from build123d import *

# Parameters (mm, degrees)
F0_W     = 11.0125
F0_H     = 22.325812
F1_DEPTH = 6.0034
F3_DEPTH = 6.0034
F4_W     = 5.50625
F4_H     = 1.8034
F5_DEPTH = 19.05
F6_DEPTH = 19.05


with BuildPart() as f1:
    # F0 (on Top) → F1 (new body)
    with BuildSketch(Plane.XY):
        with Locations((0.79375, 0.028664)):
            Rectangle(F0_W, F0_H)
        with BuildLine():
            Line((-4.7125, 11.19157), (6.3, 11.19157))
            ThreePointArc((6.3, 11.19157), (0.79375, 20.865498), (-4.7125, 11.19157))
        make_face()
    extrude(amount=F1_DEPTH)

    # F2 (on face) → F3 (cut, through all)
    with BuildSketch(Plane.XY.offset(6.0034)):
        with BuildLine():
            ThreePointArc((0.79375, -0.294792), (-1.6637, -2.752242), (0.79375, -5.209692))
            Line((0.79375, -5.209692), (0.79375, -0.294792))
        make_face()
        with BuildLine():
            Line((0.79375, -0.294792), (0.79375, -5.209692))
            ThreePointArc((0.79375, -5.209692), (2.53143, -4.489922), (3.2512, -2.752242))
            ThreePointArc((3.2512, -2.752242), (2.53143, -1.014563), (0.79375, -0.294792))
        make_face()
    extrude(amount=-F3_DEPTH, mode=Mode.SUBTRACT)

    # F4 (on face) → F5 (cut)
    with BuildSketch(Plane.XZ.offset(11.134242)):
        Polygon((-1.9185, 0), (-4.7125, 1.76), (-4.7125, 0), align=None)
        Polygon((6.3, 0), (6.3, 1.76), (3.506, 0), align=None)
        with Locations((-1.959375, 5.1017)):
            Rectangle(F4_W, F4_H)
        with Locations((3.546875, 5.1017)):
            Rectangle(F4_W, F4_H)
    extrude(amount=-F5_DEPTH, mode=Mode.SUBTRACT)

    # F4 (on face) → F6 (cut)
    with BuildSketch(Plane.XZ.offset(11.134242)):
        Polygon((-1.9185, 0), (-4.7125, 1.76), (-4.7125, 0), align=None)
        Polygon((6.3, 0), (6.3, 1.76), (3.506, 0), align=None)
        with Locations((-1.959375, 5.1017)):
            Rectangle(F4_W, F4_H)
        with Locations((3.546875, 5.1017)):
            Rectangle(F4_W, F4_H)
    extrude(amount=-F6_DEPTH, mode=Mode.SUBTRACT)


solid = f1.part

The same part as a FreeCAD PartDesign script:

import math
import FreeCAD as App
import Part
import Sketcher
from FreeCAD import Vector
Q = App.Units.Quantity


def add_polygon(sketch, points):
    """Adds a closed chain of lines whose ends are joined by coincident constraints."""
    first, n = sketch.GeometryCount, len(points)
    for a, b in zip(points, points[1:] + points[:1]):
        sketch.addGeometry(Part.LineSegment(App.Vector(*a, 0), App.Vector(*b, 0)), False)
    for i in range(n):
        sketch.addConstraint(Sketcher.Constraint("Coincident", first + i, 2, first + (i + 1) % n, 1))

doc = App.newDocument("Part")
body = doc.addObject("PartDesign::Body", "Body")

# Sketch on XY plane
sketch1 = body.newObject("Sketcher::SketchObject", "Sketch")
sketch1.AttachmentSupport = (doc.getObject("XY_Plane"), [""])
sketch1.MapMode = "FlatFace"
sketch1.addGeometry(Part.LineSegment(Vector(-5, 11, 0), Vector(-5, -11, 0)), False)
sketch1.addGeometry(Part.LineSegment(Vector(-5, -11, 0), Vector(6, -11, 0)), False)
sketch1.addGeometry(Part.LineSegment(Vector(6, -11, 0), Vector(6, 11, 0)), False)
sketch1.addGeometry(Part.ArcOfCircle(Part.Circle(Vector(1, 14, 0), Vector(0, 0, 1), 6), math.radians(-31), math.radians(211)), False)
sketch1.addConstraint(Sketcher.Constraint("Coincident", 0, 2, 1, 1))
sketch1.addConstraint(Sketcher.Constraint("Coincident", 1, 2, 2, 1))
sketch1.addConstraint(Sketcher.Constraint("Coincident", 2, 2, 3, 1))
sketch1.addConstraint(Sketcher.Constraint("Coincident", 3, 2, 0, 1))
sketch1.addConstraint(Sketcher.Constraint("Vertical", 0))
sketch1.addConstraint(Sketcher.Constraint("Horizontal", 1))
sketch1.addConstraint(Sketcher.Constraint("Vertical", 2))
sketch1.addConstraint(Sketcher.Constraint("Horizontal", 2, 2, 3, 2))
sketch1.addConstraint(Sketcher.Constraint("Radius", 3, Q("6.404 mm")))
sketch1.addConstraint(Sketcher.Constraint("DistanceX", -1, 1, 3, 3, Q("0.03125 in")))
sketch1.addConstraint(Sketcher.Constraint("DistanceX", 1, 1, 1, 2, Q("11.0125 mm")))
sketch1.addConstraint(Sketcher.Constraint("DistanceY", 0, 2, 0, 1, Q("22.325812 mm")))
sketch1.addConstraint(Sketcher.Constraint("DistanceY", -1, 1, 2, 2, Q("11.19157 mm")))
pad1 = body.newObject("PartDesign::Pad", "Pad")
pad1.Profile = sketch1
pad1.Length = 6.0034

# Sketch on XY plane
sketch2 = body.newObject("Sketcher::SketchObject", "Sketch001")
sketch2.AttachmentSupport = (doc.getObject("XY_Plane"), [""])
sketch2.MapMode = "FlatFace"
sketch2.AttachmentOffset = App.Placement(Vector(0, 0, 6.0034), App.Rotation())
sketch2.addGeometry(Part.ArcOfCircle(Part.Circle(Vector(0.8, -2.8, 0), Vector(0, 0, 1), 2.5), math.radians(90), math.radians(270)), False)
sketch2.addGeometry(Part.ArcOfCircle(Part.Circle(Vector(0.8, -2.8, 0), Vector(0, 0, 1), 2.5), math.radians(-90), math.radians(0)), False)
sketch2.addGeometry(Part.ArcOfCircle(Part.Circle(Vector(0.8, -2.8, 0), Vector(0, 0, 1), 2.5), math.radians(0), math.radians(90)), False)
sketch2.addConstraint(Sketcher.Constraint("Tangent", 0, 2, 1, 1))
sketch2.addConstraint(Sketcher.Constraint("Tangent", 1, 2, 2, 1))
sketch2.addConstraint(Sketcher.Constraint("Tangent", 2, 2, 0, 1))
sketch2.addConstraint(Sketcher.Constraint("Horizontal", 2, 3, 1, 2))
sketch2.addConstraint(Sketcher.Constraint("Vertical", 2, 3, 0, 2))
sketch2.addConstraint(Sketcher.Constraint("Vertical", 0, 2, 2, 2))
sketch2.addConstraint(Sketcher.Constraint("DistanceX", -1, 1, 0, 3, Q("0.03125 in")))
sketch2.addConstraint(Sketcher.Constraint("DistanceX", -1, 1, 1, 2, Q("0.128 in")))
sketch2.addConstraint(Sketcher.Constraint("DistanceY", 0, 3, -1, 1, Q("2.752242 mm")))
pocket1 = body.newObject("PartDesign::Pocket", "Pocket")
pocket1.Profile = sketch2
pocket1.Type = "ThroughAll"

# Sketch on XZ plane
sketch3 = body.newObject("Sketcher::SketchObject", "Sketch002")
sketch3.AttachmentSupport = (doc.getObject("XZ_Plane"), [""])
sketch3.MapMode = "FlatFace"
sketch3.AttachmentOffset = App.Placement(Vector(0, 0, 11.134242), App.Rotation())
add_polygon(sketch3, [(-1.9, 0), (-4.7, 1.8), (-4.7, 0)])  # lines 0-2
add_polygon(sketch3, [(6.3, 0), (6.3, 1.8), (3.5, 0)])  # lines 3-5
add_polygon(sketch3, [(-4.7, 6), (-4.7, 4.2), (6.3, 4.2), (6.3, 6)])  # lines 6-9
sketch3.addConstraint(Sketcher.Constraint("Vertical", 1))
sketch3.addConstraint(Sketcher.Constraint("Horizontal", 2))
sketch3.addConstraint(Sketcher.Constraint("Vertical", 3))
sketch3.addConstraint(Sketcher.Constraint("Horizontal", 5))
sketch3.addConstraint(Sketcher.Constraint("Vertical", 6))
sketch3.addConstraint(Sketcher.Constraint("Horizontal", 7))
sketch3.addConstraint(Sketcher.Constraint("Vertical", 8))
sketch3.addConstraint(Sketcher.Constraint("Horizontal", 9))
sketch3.addConstraint(Sketcher.Constraint("PointOnObject", 1, 2, -1))
sketch3.addConstraint(Sketcher.Constraint("PointOnObject", 4, 2, -1))
sketch3.addConstraint(Sketcher.Constraint("Horizontal", 0, 2, 3, 2))
sketch3.addConstraint(Sketcher.Constraint("Vertical", 1, 2, 6, 2))
sketch3.addConstraint(Sketcher.Constraint("Vertical", 5, 2, 7, 2))
sketch3.addConstraint(Sketcher.Constraint("Equal", 2, 5))
sketch3.addConstraint(Sketcher.Constraint("DistanceX", 2, 1, 2, 2, Q("0.11 in")))
sketch3.addConstraint(Sketcher.Constraint("DistanceY", 6, 2, 6, 1, Q("0.071 in")))
sketch3.addConstraint(Sketcher.Constraint("DistanceX", 7, 1, 7, 2, Q("11.0125 mm")))
sketch3.addConstraint(Sketcher.Constraint("DistanceY", 1, 2, 1, 1, Q("1.76 mm")))
sketch3.addConstraint(Sketcher.Constraint("DistanceX", 0, 2, -1, 1, Q("4.7125 mm")))
sketch3.addConstraint(Sketcher.Constraint("DistanceY", -1, 1, 6, 2, Q("4.2 mm")))
pocket2 = body.newObject("PartDesign::Pocket", "Pocket001")
pocket2.Profile = sketch3
pocket2.Length = Q("0.75 in")

# Sketch on XZ plane
sketch4 = body.newObject("Sketcher::SketchObject", "Sketch003")
sketch4.AttachmentSupport = (doc.getObject("XZ_Plane"), [""])
sketch4.MapMode = "FlatFace"
sketch4.AttachmentOffset = App.Placement(Vector(0, 0, 11.134242), App.Rotation())
add_polygon(sketch4, [(-1.9, 0), (-4.7, 1.8), (-4.7, 0)])  # lines 0-2
add_polygon(sketch4, [(6.3, 0), (6.3, 1.8), (3.5, 0)])  # lines 3-5
add_polygon(sketch4, [(-4.7, 6), (-4.7, 4.2), (6.3, 4.2), (6.3, 6)])  # lines 6-9
sketch4.addConstraint(Sketcher.Constraint("Vertical", 1))
sketch4.addConstraint(Sketcher.Constraint("Horizontal", 2))
sketch4.addConstraint(Sketcher.Constraint("Vertical", 3))
sketch4.addConstraint(Sketcher.Constraint("Horizontal", 5))
sketch4.addConstraint(Sketcher.Constraint("Vertical", 6))
sketch4.addConstraint(Sketcher.Constraint("Horizontal", 7))
sketch4.addConstraint(Sketcher.Constraint("Vertical", 8))
sketch4.addConstraint(Sketcher.Constraint("Horizontal", 9))
sketch4.addConstraint(Sketcher.Constraint("PointOnObject", 1, 2, -1))
sketch4.addConstraint(Sketcher.Constraint("PointOnObject", 4, 2, -1))
sketch4.addConstraint(Sketcher.Constraint("Horizontal", 0, 2, 3, 2))
sketch4.addConstraint(Sketcher.Constraint("Vertical", 1, 2, 6, 2))
sketch4.addConstraint(Sketcher.Constraint("Vertical", 5, 2, 7, 2))
sketch4.addConstraint(Sketcher.Constraint("Equal", 2, 5))
sketch4.addConstraint(Sketcher.Constraint("DistanceX", 2, 1, 2, 2, Q("0.11 in")))
sketch4.addConstraint(Sketcher.Constraint("DistanceY", 6, 2, 6, 1, Q("0.071 in")))
sketch4.addConstraint(Sketcher.Constraint("DistanceX", 7, 1, 7, 2, Q("11.0125 mm")))
sketch4.addConstraint(Sketcher.Constraint("DistanceY", 1, 2, 1, 1, Q("1.76 mm")))
sketch4.addConstraint(Sketcher.Constraint("DistanceX", 0, 2, -1, 1, Q("4.7125 mm")))
sketch4.addConstraint(Sketcher.Constraint("DistanceY", -1, 1, 6, 2, Q("4.2 mm")))
pocket3 = body.newObject("PartDesign::Pocket", "Pocket002")
pocket3.Profile = sketch4
pocket3.Length = Q("0.75 in")

doc.recompute()
